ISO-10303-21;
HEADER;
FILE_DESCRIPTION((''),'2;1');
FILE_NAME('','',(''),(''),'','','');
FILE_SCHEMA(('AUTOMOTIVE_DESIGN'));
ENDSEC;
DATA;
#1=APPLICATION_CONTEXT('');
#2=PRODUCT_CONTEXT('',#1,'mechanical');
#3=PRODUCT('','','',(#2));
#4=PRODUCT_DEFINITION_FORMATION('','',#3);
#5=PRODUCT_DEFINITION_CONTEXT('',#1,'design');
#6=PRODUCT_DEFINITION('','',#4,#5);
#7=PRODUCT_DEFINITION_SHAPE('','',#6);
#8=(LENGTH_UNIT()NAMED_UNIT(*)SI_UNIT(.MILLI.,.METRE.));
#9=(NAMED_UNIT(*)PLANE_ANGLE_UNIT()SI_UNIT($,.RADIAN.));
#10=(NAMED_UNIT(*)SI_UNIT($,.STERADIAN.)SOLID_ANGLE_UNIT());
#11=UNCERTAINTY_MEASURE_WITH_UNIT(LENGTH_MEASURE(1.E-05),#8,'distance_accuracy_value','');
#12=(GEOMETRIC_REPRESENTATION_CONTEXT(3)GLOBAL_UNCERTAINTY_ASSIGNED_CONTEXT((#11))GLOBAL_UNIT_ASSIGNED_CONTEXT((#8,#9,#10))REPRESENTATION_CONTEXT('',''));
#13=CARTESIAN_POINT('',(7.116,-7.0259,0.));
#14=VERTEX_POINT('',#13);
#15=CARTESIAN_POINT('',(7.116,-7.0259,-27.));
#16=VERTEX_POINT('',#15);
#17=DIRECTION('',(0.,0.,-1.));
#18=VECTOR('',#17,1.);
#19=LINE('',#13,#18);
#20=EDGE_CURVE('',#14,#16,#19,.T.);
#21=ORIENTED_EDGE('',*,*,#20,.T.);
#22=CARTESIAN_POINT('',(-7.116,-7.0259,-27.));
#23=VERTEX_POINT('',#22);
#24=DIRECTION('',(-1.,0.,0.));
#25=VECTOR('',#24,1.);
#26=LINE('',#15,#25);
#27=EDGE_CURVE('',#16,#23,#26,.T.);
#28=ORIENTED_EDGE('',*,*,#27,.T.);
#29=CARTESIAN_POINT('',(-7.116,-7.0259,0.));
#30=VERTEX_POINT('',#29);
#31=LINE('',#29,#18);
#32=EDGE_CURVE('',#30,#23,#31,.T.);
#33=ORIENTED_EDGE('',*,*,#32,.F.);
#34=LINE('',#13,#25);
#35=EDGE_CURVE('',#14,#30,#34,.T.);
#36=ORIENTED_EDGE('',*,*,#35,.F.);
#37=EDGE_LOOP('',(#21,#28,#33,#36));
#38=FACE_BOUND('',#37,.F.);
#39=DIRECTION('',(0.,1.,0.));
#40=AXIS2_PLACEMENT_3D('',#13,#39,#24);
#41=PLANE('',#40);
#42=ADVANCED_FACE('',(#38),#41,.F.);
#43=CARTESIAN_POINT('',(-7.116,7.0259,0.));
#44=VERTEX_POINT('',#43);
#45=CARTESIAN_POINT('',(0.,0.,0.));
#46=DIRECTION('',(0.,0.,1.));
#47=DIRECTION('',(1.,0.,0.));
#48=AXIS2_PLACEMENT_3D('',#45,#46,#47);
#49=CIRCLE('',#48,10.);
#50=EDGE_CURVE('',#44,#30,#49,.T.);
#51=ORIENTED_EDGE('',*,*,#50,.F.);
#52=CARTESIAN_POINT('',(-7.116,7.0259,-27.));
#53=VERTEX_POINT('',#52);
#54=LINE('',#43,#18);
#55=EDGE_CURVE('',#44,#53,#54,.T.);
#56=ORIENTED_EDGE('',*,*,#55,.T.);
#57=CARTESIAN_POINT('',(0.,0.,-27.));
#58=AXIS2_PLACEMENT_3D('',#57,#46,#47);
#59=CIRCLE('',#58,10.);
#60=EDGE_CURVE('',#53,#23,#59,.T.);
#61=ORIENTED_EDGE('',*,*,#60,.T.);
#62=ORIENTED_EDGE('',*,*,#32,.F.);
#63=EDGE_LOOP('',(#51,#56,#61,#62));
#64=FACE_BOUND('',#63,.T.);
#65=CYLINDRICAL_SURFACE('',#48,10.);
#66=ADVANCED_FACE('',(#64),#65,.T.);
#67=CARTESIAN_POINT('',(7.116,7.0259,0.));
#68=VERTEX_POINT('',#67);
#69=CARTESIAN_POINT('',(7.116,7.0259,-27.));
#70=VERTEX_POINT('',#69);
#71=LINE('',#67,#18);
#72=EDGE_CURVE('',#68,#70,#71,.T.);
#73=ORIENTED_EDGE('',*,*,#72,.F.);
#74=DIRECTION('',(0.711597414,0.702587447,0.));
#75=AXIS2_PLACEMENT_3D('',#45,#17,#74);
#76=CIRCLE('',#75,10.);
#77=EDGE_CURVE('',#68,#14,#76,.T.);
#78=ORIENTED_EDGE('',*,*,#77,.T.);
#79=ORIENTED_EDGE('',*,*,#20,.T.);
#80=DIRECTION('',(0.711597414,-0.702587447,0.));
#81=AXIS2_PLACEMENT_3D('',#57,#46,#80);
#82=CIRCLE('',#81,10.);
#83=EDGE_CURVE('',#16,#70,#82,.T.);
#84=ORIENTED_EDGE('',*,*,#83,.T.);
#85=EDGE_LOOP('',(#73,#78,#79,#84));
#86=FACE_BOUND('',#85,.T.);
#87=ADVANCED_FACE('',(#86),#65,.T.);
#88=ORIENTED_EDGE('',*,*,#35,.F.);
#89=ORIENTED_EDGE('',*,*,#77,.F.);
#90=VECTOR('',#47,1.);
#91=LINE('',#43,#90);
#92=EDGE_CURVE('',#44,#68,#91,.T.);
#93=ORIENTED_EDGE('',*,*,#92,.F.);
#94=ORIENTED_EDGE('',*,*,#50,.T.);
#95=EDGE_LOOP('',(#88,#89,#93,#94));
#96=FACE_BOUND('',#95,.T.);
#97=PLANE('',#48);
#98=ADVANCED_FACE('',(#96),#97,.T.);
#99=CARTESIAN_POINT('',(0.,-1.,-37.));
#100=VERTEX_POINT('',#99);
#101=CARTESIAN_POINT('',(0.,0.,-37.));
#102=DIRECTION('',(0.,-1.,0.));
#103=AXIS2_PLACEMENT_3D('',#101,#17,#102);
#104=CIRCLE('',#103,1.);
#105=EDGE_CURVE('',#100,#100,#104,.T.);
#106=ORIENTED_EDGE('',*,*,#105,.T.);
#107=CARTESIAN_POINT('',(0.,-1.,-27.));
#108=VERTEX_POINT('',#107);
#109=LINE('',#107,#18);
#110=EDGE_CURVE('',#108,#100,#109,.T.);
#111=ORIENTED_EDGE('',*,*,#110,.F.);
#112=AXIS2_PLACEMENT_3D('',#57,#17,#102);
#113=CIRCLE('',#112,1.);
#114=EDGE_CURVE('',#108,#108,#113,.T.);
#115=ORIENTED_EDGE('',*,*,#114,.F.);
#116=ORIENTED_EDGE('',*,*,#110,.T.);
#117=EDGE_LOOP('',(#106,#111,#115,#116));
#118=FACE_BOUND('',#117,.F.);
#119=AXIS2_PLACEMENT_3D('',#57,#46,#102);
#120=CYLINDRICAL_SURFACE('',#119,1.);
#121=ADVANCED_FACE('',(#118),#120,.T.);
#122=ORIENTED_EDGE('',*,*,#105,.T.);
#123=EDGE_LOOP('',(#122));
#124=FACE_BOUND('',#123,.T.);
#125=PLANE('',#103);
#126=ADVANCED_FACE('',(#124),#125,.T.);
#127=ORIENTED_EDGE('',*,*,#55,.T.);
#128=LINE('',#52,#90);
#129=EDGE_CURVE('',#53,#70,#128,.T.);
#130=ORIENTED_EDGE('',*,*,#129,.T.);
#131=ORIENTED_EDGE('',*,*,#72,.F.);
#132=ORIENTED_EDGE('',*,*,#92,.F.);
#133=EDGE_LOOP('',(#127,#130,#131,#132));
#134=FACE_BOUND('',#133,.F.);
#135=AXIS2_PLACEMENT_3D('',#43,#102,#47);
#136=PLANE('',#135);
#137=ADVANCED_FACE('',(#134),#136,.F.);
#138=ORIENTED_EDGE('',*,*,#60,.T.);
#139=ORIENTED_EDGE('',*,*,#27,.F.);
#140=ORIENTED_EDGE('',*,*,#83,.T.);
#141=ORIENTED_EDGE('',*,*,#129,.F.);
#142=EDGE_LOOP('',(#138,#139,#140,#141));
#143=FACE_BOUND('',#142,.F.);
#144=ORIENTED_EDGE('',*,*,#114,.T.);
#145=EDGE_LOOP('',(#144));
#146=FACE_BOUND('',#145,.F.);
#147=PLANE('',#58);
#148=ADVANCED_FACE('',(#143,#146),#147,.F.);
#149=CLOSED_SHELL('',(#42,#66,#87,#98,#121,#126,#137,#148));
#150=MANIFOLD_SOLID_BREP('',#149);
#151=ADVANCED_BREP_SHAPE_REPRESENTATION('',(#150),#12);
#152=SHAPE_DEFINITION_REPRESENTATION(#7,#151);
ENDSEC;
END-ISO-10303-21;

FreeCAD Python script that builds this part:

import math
import FreeCAD as App
import Part
import Sketcher

V = App.Vector
Q = App.Units.Quantity

doc = App.newDocument("Part")
body = doc.addObject("PartDesign::Body", "Body")

# Sketch on XY plane
sketch1 = doc.addObject("Sketcher::SketchObject", "Sketch")
body.addObject(sketch1)
sketch1.AttachmentSupport = (doc.XY_Plane, [""])
sketch1.MapMode = "FlatFace"
sketch1.addGeometry([
    Part.ArcOfCircle(Part.Circle(V(0, 0, 0), V(0, 0, 1), 10), math.radians(-44.634966), math.radians(44.634966)),
    Part.LineSegment(V(7.116, 7.0259, 0), V(-7.116, 7.0259, 0)),
    Part.ArcOfCircle(Part.Circle(V(0, 0, 0), V(0, 0, 1), 10), math.radians(135.365034), math.radians(224.634966)),
    Part.LineSegment(V(-7.116, -7.0259, 0), V(7.116, -7.0259, 0)),
], False)
sketch1.addConstraint([
    Sketcher.Constraint("Coincident", 0, 2, 1, 1),
    Sketcher.Constraint("Coincident", 1, 2, 2, 1),
    Sketcher.Constraint("Coincident", 2, 2, 3, 1),
    Sketcher.Constraint("Coincident", 3, 2, 0, 1),
    Sketcher.Constraint("Horizontal", 1),
    Sketcher.Constraint("Horizontal", 3),
    Sketcher.Constraint("Coincident", 0, 3, -1, 1),
    Sketcher.Constraint("Coincident", 2, 3, -1, 1),
    Sketcher.Constraint("Equal", 0, 2),
    Sketcher.Constraint("Vertical", 1, 2, 2, 2),
    Sketcher.Constraint("Radius", 0, Q("10 mm")),
    Sketcher.Constraint("DistanceY", 2, 2, 1, 2, Q("14.0518 mm")),
])
pad1 = doc.addObject("PartDesign::Pad", "Pad")
body.addObject(pad1)
pad1.Profile = sketch1
pad1.Length = 27
pad1.Reversed = True

# Sketch on XY plane
sketch2 = doc.addObject("Sketcher::SketchObject", "Sketch001")
body.addObject(sketch2)
sketch2.AttachmentSupport = (doc.XY_Plane, [""])
sketch2.MapMode = "FlatFace"
sketch2.AttachmentOffset = App.Placement(V(0, 0, -27), App.Rotation())
sketch2.addGeometry(Part.Circle(V(0, 0, 0), V(0, 0, 1), 1), False)
sketch2.addConstraint([
    Sketcher.Constraint("Coincident", 0, 3, -1, 1),
    Sketcher.Constraint("Diameter", 0, Q("2 mm")),
])
pad2 = doc.addObject("PartDesign::Pad", "Pad001")
body.addObject(pad2)
pad2.Profile = sketch2
pad2.Length = 10
pad2.Reversed = True

doc.recompute()
